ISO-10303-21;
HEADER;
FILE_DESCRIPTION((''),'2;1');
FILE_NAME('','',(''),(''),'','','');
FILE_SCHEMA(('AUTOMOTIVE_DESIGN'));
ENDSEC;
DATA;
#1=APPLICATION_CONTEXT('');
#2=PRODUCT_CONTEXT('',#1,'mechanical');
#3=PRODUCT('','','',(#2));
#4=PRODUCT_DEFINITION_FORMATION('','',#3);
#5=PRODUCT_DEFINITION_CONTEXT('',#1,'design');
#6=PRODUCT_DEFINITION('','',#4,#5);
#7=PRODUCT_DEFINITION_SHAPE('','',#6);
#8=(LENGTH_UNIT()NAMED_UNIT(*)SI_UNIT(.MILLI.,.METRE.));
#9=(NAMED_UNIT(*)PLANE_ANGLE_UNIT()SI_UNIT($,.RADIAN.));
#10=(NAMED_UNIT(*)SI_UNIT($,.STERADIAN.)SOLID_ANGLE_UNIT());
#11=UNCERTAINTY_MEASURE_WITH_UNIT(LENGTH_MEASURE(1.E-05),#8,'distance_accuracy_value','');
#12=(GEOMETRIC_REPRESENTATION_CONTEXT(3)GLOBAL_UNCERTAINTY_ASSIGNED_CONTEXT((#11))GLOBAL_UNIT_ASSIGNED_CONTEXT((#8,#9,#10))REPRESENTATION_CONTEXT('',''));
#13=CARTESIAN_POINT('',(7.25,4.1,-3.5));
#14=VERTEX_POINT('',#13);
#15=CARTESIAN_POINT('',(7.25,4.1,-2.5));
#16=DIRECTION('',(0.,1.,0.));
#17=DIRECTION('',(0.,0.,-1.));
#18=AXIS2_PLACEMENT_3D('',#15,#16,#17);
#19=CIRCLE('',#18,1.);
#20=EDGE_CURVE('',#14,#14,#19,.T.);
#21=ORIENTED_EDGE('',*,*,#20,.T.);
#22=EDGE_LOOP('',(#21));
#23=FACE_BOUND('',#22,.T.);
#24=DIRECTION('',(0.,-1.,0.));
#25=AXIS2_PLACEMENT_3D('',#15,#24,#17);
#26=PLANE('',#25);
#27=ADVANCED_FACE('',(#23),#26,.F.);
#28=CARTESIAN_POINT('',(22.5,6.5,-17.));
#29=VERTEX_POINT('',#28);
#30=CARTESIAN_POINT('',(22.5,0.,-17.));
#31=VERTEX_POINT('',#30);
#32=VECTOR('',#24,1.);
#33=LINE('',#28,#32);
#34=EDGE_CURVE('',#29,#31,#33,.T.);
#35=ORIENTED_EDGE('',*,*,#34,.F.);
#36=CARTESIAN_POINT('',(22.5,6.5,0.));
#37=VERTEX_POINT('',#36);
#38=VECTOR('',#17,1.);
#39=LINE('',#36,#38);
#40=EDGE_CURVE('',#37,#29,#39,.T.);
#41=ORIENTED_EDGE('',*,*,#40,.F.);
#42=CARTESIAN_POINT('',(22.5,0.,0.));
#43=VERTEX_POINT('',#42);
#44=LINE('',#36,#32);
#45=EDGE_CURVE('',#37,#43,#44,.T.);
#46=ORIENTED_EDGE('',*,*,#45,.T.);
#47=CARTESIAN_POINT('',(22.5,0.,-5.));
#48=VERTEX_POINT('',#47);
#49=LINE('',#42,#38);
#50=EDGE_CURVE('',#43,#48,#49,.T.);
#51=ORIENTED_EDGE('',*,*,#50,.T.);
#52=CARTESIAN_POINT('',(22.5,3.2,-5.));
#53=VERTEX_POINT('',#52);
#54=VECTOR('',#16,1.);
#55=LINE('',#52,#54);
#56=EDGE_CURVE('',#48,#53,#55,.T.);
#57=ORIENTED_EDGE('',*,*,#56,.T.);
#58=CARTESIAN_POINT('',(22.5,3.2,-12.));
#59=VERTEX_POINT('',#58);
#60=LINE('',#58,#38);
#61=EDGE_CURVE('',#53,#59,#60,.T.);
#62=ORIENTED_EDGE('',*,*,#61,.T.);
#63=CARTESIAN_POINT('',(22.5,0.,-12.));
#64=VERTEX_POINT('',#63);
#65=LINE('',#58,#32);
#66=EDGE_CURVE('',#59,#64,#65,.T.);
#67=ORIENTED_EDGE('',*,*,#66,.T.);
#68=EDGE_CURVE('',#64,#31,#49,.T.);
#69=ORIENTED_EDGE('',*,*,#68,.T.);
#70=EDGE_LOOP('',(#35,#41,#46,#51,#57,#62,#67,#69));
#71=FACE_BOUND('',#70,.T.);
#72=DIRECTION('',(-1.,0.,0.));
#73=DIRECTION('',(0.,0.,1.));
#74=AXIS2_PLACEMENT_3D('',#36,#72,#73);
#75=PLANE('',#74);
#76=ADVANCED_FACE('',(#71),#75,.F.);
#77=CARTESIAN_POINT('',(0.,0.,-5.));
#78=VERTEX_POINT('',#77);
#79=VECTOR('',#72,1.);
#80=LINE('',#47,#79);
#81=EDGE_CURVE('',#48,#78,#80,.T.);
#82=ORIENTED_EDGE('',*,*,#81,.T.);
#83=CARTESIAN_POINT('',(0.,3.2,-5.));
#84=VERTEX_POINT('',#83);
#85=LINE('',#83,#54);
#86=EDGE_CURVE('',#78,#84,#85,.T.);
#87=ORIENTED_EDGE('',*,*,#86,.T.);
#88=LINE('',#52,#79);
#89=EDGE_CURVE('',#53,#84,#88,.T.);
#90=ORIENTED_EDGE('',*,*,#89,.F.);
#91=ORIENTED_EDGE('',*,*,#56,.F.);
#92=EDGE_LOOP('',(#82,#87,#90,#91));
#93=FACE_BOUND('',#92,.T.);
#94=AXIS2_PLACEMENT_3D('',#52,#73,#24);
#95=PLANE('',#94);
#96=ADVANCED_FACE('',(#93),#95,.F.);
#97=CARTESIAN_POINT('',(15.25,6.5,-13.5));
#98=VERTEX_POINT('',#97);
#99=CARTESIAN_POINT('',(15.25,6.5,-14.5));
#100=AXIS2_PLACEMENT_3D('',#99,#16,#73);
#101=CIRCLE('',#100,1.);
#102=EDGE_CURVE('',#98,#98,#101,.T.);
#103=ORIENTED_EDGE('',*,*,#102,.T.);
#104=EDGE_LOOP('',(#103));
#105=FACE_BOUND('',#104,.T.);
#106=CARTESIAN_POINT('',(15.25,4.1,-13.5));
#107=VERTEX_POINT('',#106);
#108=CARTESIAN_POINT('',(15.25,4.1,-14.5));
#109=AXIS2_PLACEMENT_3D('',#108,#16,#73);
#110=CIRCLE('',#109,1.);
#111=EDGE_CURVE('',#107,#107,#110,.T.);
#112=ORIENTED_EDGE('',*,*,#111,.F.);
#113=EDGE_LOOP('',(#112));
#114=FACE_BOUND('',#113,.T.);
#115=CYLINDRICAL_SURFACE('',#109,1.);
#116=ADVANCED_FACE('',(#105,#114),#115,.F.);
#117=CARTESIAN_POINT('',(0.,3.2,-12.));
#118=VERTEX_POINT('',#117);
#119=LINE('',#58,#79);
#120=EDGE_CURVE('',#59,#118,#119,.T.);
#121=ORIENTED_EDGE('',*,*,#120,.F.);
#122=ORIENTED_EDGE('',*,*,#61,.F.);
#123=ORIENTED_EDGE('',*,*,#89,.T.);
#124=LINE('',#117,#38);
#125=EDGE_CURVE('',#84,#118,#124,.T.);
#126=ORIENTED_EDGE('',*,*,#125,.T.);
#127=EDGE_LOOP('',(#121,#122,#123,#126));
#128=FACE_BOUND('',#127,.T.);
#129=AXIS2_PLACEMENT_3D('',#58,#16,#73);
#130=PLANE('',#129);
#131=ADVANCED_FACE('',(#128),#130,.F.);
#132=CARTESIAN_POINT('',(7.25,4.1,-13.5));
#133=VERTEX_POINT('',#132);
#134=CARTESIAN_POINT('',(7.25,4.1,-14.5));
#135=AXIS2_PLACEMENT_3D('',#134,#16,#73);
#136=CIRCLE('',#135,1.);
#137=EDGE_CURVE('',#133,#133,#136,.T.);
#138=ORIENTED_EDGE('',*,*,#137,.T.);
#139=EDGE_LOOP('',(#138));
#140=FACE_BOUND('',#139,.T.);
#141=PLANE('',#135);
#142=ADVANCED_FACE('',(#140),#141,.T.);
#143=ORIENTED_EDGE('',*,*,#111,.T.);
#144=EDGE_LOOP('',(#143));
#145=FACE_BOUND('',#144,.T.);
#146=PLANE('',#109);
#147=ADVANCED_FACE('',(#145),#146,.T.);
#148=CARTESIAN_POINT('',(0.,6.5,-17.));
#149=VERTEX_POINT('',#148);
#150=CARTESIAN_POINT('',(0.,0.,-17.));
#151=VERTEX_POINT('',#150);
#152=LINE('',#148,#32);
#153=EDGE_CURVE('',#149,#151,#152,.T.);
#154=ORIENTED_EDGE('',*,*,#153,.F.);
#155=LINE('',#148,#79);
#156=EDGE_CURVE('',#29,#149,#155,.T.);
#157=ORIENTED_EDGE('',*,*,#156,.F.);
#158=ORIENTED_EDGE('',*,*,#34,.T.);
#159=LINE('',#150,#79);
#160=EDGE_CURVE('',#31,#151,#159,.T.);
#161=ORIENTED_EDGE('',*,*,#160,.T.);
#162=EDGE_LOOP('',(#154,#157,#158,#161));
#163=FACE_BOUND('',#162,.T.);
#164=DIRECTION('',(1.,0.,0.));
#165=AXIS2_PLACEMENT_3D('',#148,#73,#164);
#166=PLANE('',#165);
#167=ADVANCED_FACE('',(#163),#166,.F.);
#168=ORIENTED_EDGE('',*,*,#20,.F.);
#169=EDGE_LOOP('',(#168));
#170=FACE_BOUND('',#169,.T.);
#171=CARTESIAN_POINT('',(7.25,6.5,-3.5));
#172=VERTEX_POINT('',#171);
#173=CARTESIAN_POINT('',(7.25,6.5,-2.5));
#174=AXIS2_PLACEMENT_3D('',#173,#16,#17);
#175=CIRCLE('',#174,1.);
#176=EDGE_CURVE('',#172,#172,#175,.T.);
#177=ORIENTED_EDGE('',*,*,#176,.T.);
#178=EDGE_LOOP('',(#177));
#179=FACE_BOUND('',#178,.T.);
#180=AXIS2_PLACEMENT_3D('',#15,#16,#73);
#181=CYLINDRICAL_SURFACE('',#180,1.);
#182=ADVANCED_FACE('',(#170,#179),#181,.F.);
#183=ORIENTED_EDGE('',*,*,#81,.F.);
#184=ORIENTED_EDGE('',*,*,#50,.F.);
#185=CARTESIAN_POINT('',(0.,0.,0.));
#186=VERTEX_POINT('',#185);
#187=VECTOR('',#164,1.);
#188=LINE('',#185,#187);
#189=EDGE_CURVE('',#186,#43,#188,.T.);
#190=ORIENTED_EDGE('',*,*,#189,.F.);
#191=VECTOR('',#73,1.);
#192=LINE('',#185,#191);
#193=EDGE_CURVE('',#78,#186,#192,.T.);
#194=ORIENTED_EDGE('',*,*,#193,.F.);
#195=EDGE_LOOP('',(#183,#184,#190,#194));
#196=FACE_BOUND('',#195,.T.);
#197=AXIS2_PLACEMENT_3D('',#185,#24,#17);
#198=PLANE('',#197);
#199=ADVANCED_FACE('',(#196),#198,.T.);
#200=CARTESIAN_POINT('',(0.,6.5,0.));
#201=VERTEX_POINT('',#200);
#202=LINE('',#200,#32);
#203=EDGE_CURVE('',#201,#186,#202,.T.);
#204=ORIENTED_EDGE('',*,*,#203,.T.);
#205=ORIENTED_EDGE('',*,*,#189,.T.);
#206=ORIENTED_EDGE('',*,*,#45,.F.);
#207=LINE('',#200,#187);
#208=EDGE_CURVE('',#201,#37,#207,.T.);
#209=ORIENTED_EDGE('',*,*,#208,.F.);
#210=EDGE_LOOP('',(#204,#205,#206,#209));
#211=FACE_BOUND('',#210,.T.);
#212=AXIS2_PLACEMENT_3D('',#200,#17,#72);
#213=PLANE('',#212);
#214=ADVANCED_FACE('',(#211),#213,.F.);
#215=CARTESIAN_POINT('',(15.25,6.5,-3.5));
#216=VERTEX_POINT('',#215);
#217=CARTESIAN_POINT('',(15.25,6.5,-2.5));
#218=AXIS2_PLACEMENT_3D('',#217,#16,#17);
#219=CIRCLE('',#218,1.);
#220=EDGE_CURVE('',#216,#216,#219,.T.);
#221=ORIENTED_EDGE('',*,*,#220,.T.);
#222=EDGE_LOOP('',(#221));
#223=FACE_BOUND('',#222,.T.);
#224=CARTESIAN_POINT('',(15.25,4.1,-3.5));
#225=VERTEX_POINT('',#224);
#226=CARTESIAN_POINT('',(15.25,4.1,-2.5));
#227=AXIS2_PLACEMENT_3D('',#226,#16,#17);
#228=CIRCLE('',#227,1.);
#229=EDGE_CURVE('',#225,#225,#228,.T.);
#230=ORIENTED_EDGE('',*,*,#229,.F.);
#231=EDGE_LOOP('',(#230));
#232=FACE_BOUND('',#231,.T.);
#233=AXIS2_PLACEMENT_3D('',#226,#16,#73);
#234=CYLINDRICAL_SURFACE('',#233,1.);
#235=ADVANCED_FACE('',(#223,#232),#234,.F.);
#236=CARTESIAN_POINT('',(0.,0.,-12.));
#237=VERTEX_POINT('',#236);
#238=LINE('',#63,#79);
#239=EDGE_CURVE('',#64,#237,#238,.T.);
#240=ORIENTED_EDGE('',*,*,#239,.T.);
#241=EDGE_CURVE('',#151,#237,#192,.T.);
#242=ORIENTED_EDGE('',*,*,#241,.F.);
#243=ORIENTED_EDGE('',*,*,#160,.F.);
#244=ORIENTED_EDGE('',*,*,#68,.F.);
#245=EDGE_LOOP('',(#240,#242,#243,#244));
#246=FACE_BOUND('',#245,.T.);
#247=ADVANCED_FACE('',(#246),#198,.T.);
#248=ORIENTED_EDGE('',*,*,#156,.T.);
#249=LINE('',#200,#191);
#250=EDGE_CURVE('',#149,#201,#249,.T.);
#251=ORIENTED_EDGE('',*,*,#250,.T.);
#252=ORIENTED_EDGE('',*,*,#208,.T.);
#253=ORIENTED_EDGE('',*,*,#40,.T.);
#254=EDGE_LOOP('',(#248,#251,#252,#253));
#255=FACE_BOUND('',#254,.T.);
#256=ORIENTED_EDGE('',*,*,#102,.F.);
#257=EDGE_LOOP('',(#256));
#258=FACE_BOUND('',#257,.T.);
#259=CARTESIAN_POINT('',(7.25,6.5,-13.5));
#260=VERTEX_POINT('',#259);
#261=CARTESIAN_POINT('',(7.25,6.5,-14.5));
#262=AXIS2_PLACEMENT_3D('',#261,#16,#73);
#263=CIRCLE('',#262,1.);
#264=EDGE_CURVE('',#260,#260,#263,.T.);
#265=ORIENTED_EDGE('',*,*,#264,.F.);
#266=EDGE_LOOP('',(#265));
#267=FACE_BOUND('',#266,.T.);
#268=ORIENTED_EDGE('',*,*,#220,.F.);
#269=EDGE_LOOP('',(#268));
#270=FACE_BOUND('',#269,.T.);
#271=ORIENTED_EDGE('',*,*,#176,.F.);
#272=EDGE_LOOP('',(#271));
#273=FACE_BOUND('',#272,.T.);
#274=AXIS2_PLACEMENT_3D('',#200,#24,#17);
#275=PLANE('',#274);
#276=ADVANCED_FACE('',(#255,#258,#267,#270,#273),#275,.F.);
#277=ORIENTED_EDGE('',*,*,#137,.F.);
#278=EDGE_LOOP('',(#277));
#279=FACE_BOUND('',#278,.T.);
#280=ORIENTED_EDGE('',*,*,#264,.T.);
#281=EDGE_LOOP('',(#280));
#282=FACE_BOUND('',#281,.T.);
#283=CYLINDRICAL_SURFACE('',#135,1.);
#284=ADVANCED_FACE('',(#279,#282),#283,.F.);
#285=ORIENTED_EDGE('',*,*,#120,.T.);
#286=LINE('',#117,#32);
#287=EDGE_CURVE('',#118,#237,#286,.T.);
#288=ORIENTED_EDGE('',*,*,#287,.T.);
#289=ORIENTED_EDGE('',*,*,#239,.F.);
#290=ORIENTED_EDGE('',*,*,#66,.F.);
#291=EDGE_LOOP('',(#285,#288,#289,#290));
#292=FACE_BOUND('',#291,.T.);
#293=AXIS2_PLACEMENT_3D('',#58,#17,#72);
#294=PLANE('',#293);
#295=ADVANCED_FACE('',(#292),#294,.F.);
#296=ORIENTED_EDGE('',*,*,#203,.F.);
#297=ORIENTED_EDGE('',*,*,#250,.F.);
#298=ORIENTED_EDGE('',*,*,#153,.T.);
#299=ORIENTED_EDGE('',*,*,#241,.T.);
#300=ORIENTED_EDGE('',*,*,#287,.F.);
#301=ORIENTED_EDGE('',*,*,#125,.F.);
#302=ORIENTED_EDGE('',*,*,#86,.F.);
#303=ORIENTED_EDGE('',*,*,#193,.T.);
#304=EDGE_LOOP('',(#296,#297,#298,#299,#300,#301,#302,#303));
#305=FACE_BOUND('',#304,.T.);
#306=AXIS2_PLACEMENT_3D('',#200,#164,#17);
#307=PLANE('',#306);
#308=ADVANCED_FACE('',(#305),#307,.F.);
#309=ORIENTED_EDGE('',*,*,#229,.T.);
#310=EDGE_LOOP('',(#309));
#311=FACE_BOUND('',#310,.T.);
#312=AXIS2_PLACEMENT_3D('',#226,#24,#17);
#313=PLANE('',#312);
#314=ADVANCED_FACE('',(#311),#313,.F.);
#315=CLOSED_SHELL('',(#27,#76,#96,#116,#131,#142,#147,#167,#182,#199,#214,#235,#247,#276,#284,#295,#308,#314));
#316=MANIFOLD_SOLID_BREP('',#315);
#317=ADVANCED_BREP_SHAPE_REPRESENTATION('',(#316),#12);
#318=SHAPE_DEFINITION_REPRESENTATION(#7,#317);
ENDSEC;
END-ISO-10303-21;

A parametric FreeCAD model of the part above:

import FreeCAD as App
import Part
import Sketcher

V = App.Vector


def add_polygon(sketch, points):
    """Adds a closed chain of lines whose ends are joined by coincident constraints."""
    first, n = sketch.GeometryCount, len(points)
    for a, b in zip(points, points[1:] + points[:1]):
        sketch.addGeometry(Part.LineSegment(App.Vector(*a, 0), App.Vector(*b, 0)), False)
    for i in range(n):
        sketch.addConstraint(Sketcher.Constraint("Coincident", first + i, 2, first + (i + 1) % n, 1))

doc = App.newDocument("Part")
body = doc.addObject("PartDesign::Body", "Body")

sketch1 = body.newObject("Sketcher::SketchObject", "Sketch")
sketch1.AttachmentSupport = (doc.getObject("XZ_Plane"), [""])
sketch1.MapMode = "FlatFace"
add_polygon(sketch1, [(0, -17), (0, 0), (22, 0), (22, -17)])
sketch1.addConstraint(Sketcher.Constraint("Vertical", 0))
sketch1.addConstraint(Sketcher.Constraint("Horizontal", 1))
sketch1.addConstraint(Sketcher.Constraint("Vertical", 2))
sketch1.addConstraint(Sketcher.Constraint("Horizontal", 3))
sketch1.addConstraint(Sketcher.Constraint("Coincident", 0, 2, -1, 1))
sketch1.addConstraint(Sketcher.Constraint("DistanceY", 0, 1, 0, 2, 17.0))
sketch1.addConstraint(Sketcher.Constraint("DistanceX", 1, 1, 1, 2, 22.5))
pad1 = body.newObject("PartDesign::Pad", "Pad")
pad1.Profile = sketch1
pad1.Length = 6.5
pad1.Reversed = True

sketch2 = body.newObject("Sketcher::SketchObject", "Sketch001")
sketch2.AttachmentSupport = (doc.getObject("YZ_Plane"), [""])
sketch2.MapMode = "FlatFace"
add_polygon(sketch2, [(3.2, -12), (0, -12), (0, -5), (3.2, -5)])
sketch2.addConstraint(Sketcher.Constraint("Horizontal", 0))
sketch2.addConstraint(Sketcher.Constraint("Vertical", 1))
sketch2.addConstraint(Sketcher.Constraint("Horizontal", 2))
sketch2.addConstraint(Sketcher.Constraint("Vertical", 3))
sketch2.addConstraint(Sketcher.Constraint("PointOnObject", 0, 2, -2))
sketch2.addConstraint(Sketcher.Constraint("DistanceY", 1, 1, 1, 2, 7.0))
sketch2.addConstraint(Sketcher.Constraint("DistanceX", 0, 2, 0, 1, 3.2))
sketch2.addConstraint(Sketcher.Constraint("DistanceY", 0, 2, -1, 1, 12.0))
pocket1 = body.newObject("PartDesign::Pocket", "Pocket")
pocket1.Profile = sketch2
pocket1.Type = "ThroughAll"
pocket1.Reversed = True

sketch3 = body.newObject("Sketcher::SketchObject", "Sketch002")
sketch3.AttachmentSupport = (doc.getObject("XZ_Plane"), [""])
sketch3.MapMode = "FlatFace"
sketch3.AttachmentOffset = App.Placement(V(0, 0, -6.5), App.Rotation())
sketch3.addGeometry(Part.Circle(V(7.2, -14.5, 0), V(0, 0, 1), 1), False)
sketch3.addGeometry(Part.Circle(V(15.2, -14.5, 0), V(0, 0, 1), 1), False)
sketch3.addGeometry(Part.Circle(V(15.2, -2.5, 0), V(0, 0, 1), 1), False)
sketch3.addGeometry(Part.Circle(V(7.2, -2.5, 0), V(0, 0, 1), 1), False)
sketch3.addConstraint(Sketcher.Constraint("Equal", 0, 1))
sketch3.addConstraint(Sketcher.Constraint("Equal", 1, 2))
sketch3.addConstraint(Sketcher.Constraint("Equal", 2, 3))
sketch3.addConstraint(Sketcher.Constraint("Horizontal", 0, 3, 1, 3))
sketch3.addConstraint(Sketcher.Constraint("Horizontal", 2, 3, 3, 3))
sketch3.addConstraint(Sketcher.Constraint("Vertical", 1, 3, 2, 3))
sketch3.addConstraint(Sketcher.Constraint("Vertical", 0, 3, 3, 3))
sketch3.addConstraint(Sketcher.Constraint("Diameter", 0, 2.0))
sketch3.addConstraint(Sketcher.Constraint("DistanceX", 0, 3, 1, 3, 8.0))
sketch3.addConstraint(Sketcher.Constraint("DistanceY", 1, 3, 2, 3, 12.0))
sketch3.addConstraint(Sketcher.Constraint("DistanceY", 0, 3, -1, 1, 14.5))
sketch3.addConstraint(Sketcher.Constraint("DistanceX", -1, 1, 0, 3, 7.25))
pocket2 = body.newObject("PartDesign::Pocket", "Pocket001")
pocket2.Profile = sketch3
pocket2.Length = 2.4
pocket2.Reversed = True

doc.recompute()
